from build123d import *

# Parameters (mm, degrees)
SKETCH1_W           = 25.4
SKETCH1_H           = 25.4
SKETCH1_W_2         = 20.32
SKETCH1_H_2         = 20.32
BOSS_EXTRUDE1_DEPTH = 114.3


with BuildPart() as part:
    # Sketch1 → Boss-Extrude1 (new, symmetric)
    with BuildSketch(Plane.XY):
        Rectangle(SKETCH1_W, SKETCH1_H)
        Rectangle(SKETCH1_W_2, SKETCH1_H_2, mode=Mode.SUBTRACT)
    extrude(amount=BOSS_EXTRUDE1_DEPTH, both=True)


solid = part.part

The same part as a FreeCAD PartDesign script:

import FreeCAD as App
import Part
import Sketcher

V = App.Vector
Q = App.Units.Quantity


def add_polygon(sketch, points):
    """Adds a closed chain of lines whose ends are joined by coincident constraints."""
    first, n = sketch.GeometryCount, len(points)
    for a, b in zip(points, points[1:] + points[:1]):
        sketch.addGeometry(Part.LineSegment(App.Vector(*a, 0), App.Vector(*b, 0)), False)
    for i in range(n):
        sketch.addConstraint(Sketcher.Constraint("Coincident", first + i, 2, first + (i + 1) % n, 1))

doc = App.newDocument("Part")
body = doc.addObject("PartDesign::Body", "Body")

# Sketch on XY plane
sketch1 = doc.addObject("Sketcher::SketchObject", "Sketch")
body.addObject(sketch1)
sketch1.AttachmentSupport = (doc.XY_Plane, [""])
sketch1.MapMode = "FlatFace"
add_polygon(sketch1, [(-13, 13), (-13, -13), (13, -13), (13, 13)])  # lines 0-3
add_polygon(sketch1, [(10, -10), (-10, -10), (-10, 10), (10, 10)])  # lines 4-7
sketch1.addConstraint([
    Sketcher.Constraint("Vertical", 0),
    Sketcher.Constraint("Horizontal", 1),
    Sketcher.Constraint("Vertical", 2),
    Sketcher.Constraint("Horizontal", 3),
    Sketcher.Constraint("Horizontal", 4),
    Sketcher.Constraint("Vertical", 5),
    Sketcher.Constraint("Horizontal", 6),
    Sketcher.Constraint("Vertical", 7),
    Sketcher.Constraint("Symmetric", 0, 2, 2, 2, -1, 1),
    Sketcher.Constraint("Symmetric", 4, 2, 6, 2, -1, 1),
    Sketcher.Constraint("Equal", 3, 0),
    Sketcher.Constraint("Equal", 6, 5),
    Sketcher.Constraint("DistanceX", 1, 1, 1, 2, Q("1 in")),
    Sketcher.Constraint("DistanceX", 4, 2, 4, 1, Q("0.8 in")),
])
pad1 = doc.addObject("PartDesign::Pad", "Pad")
body.addObject(pad1)
pad1.Profile = sketch1
pad1.Length = Q("9 in")
pad1.Midplane = True

doc.recompute()
